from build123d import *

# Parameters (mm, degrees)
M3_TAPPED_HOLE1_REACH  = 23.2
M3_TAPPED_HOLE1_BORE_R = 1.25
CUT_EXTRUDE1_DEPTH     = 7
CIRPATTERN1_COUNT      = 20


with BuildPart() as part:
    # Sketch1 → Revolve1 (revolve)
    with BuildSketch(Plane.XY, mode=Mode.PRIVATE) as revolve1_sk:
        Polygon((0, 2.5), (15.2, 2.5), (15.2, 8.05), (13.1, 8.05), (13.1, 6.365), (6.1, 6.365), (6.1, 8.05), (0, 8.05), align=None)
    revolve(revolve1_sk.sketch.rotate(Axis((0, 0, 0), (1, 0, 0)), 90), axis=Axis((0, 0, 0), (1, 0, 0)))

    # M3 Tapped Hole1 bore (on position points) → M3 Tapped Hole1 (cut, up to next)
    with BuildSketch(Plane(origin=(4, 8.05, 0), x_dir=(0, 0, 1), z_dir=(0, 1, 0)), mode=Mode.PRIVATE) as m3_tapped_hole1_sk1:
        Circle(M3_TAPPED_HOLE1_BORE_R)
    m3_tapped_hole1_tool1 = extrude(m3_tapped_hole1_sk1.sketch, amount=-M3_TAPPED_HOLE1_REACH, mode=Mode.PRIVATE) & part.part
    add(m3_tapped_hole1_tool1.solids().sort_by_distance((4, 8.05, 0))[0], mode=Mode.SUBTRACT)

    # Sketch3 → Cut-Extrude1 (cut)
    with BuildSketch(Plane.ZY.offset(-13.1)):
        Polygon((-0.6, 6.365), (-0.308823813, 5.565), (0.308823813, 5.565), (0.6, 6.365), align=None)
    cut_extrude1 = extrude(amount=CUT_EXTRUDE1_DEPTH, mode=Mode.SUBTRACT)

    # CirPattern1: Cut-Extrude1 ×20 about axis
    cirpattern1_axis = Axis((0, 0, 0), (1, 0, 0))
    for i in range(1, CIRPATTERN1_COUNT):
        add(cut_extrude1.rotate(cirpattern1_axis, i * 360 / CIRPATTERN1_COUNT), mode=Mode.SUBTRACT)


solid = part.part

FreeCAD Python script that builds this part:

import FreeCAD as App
import Part
import Sketcher
Q = App.Units.Quantity


def add_polygon(sketch, points):
    """Adds a closed chain of lines whose ends are joined by coincident constraints."""
    first, n = sketch.GeometryCount, len(points)
    for a, b in zip(points, points[1:] + points[:1]):
        sketch.addGeometry(Part.LineSegment(App.Vector(*a, 0), App.Vector(*b, 0)), False)
    for i in range(n):
        sketch.addConstraint(Sketcher.Constraint("Coincident", first + i, 2, first + (i + 1) % n, 1))

doc = App.newDocument("Part")
body = doc.addObject("PartDesign::Body", "Body")

# Sketch on XY plane
sketch1 = doc.addObject("Sketcher::SketchObject", "Sketch")
body.addObject(sketch1)
sketch1.AttachmentSupport = (doc.XY_Plane, [""])
sketch1.MapMode = "FlatFace"
add_polygon(sketch1, [(0, 2.5), (15.2, 2.5), (15.2, 8.1), (13.1, 8.1), (13.1, 6.4), (6.1, 6.4), (6.1, 8.1), (0, 8.1)])  # lines 0-7
sketch1.addConstraint(Sketcher.Constraint("Horizontal", 0))
sketch1.addConstraint(Sketcher.Constraint("Vertical", 1))
sketch1.addConstraint(Sketcher.Constraint("Horizontal", 2))
sketch1.addConstraint(Sketcher.Constraint("Vertical", 3))
sketch1.addConstraint(Sketcher.Constraint("Horizontal", 4))
sketch1.addConstraint(Sketcher.Constraint("Vertical", 5))
sketch1.addConstraint(Sketcher.Constraint("Horizontal", 6))
sketch1.addConstraint(Sketcher.Constraint("Vertical", 7))
sketch1.addConstraint(Sketcher.Constraint("PointOnObject", 6, 2, -2))
sketch1.addConstraint(Sketcher.Constraint("Horizontal", 2, 2, 5, 2))
sketch1.addConstraint(Sketcher.Constraint("DistanceX", 4, 2, 4, 1, 7.0))
sketch1.addConstraint(Sketcher.Constraint("DistanceX", 0, 1, 0, 2, 15.2))
sketch1.addConstraint(Sketcher.Constraint("DistanceX", 2, 2, 2, 1, 2.1))
sketch1.addConstraint(Sketcher.Constraint("DistanceY", 1, 1, 1, 2, 5.55))
sketch1.addConstraint(Sketcher.Constraint("DistanceY", -1, 1, 0, 2, 2.5))
sketch1.addConstraint(Sketcher.Constraint("DistanceY", 3, 2, 3, 1, 1.685))
revolution = doc.addObject("PartDesign::Revolution", "Revolution")
body.addObject(revolution)
revolution.Profile = sketch1
revolution.ReferenceAxis = (sketch1, ["H_Axis"])
revolution.Angle = 360

# Sketch on XZ plane
sketch2 = doc.addObject("Sketcher::SketchObject", "Sketch001")
body.addObject(sketch2)
sketch2.AttachmentSupport = (doc.XZ_Plane, [""])
sketch2.MapMode = "FlatFace"
sketch2.AttachmentOffset = App.Placement(App.Vector(0, 0, -8.05), App.Rotation())
sketch2.addGeometry(Part.Circle(App.Vector(4, 0, 0), App.Vector(0, 0, 1), 1.2), False)
sketch2.addConstraint(Sketcher.Constraint("PointOnObject", 0, 3, -1))
sketch2.addConstraint(Sketcher.Constraint("Diameter", 0, 2.5))
sketch2.addConstraint(Sketcher.Constraint("DistanceX", -1, 1, 0, 3, 4.0))
pocket1 = doc.addObject("PartDesign::Pocket", "Pocket")
body.addObject(pocket1)
pocket1.Profile = sketch2
pocket1.Length = 5.884936
pocket1.Reversed = True

# Sketch on YZ plane
sketch3 = doc.addObject("Sketcher::SketchObject", "Sketch002")
body.addObject(sketch3)
sketch3.AttachmentSupport = (doc.YZ_Plane, [""])
sketch3.MapMode = "FlatFace"
sketch3.AttachmentOffset = App.Placement(App.Vector(0, 0, 13.1), App.Rotation())
add_polygon(sketch3, [(6.4, -0.6), (5.6, -0.3), (5.6, 0.3), (6.4, 0.6)])  # lines 0-3
sketch3.addConstraint(Sketcher.Constraint("Vertical", 1))
sketch3.addConstraint(Sketcher.Constraint("Vertical", 3))
sketch3.addConstraint(Sketcher.Constraint("Equal", 0, 2))
sketch3.addConstraint(Sketcher.Constraint("Angle", 0, Q("160 deg")))
sketch3.addConstraint(Sketcher.Constraint("DistanceY", 3, 2, 3, 1, 1.2))
sketch3.addConstraint(Sketcher.Constraint("DistanceY", -1, 1, 2, 2, 0.6))
sketch3.addConstraint(Sketcher.Constraint("DistanceX", 1, 2, 2, 2, 0.8))
sketch3.addConstraint(Sketcher.Constraint("DistanceX", -1, 1, 0, 2, 5.565))
pocket2 = doc.addObject("PartDesign::Pocket", "Pocket001")
body.addObject(pocket2)
pocket2.Profile = sketch3
pocket2.Length = 7
doc.recompute()

polarpattern = doc.addObject("PartDesign::PolarPattern", "PolarPattern")
body.addObject(polarpattern)
polarpattern.Originals = [pocket2]
polarpattern.Axis = (doc.X_Axis, [""])
polarpattern.Angle = 360
polarpattern.Occurrences = 20
body.Tip = polarpattern

doc.recompute()
